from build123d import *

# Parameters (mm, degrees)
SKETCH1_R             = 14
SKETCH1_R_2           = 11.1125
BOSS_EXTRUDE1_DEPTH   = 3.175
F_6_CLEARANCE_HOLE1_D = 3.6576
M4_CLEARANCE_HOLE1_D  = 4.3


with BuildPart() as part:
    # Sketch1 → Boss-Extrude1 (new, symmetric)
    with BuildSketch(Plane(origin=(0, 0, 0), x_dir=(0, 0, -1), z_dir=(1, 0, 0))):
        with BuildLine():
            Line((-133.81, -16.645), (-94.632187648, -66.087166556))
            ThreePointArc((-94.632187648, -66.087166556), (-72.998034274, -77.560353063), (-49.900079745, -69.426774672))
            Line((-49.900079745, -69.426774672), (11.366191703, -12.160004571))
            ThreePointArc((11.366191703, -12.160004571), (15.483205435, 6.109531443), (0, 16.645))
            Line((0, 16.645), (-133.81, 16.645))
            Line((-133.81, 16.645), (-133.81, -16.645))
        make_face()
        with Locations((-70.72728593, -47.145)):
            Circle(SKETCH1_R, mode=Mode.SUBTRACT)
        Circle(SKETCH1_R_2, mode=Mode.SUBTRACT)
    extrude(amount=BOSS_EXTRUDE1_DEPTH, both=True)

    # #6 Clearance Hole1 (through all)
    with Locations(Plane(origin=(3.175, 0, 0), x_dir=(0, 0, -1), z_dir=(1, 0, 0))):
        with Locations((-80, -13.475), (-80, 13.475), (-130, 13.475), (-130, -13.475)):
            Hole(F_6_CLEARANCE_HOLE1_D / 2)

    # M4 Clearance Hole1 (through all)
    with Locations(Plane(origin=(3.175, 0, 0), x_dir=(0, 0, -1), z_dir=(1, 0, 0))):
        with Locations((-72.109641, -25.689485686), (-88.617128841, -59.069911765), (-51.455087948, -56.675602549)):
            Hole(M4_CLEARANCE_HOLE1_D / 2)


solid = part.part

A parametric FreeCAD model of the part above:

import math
import FreeCAD as App
import Part
import Sketcher
Q = App.Units.Quantity

doc = App.newDocument("Part")
params = doc.addObject("Spreadsheet::Sheet", "Params")
for row, (alias, value) in enumerate([
    ("sketch1_diameter", "28 mm"),
    ("sketch1_radius", "30.5 mm"),
    ("sketch1_width", "33.29 mm"),
    ("sketch1_height", "133.81 mm"),
    ("pad1_length", "6.35 mm"),
    ("hole_diameter", "3.6576 mm"),
    ("sketch3_diameter", "4.3 mm"),
    ("hole2_diameter", "4.3 mm"),
], start=1):
    params.set(f"A{row}", alias)
    params.set(f"B{row}", "=" + value)
    params.setAlias(f"B{row}", alias)

body = doc.addObject("PartDesign::Body", "Body")

# Sketch on YZ plane
sketch1 = body.newObject("Sketcher::SketchObject", "Sketch")
sketch1.AttachmentSupport = (doc.getObject("YZ_Plane"), [""])
sketch1.MapMode = "FlatFace"
sketch1.addGeometry([
    Part.LineSegment(App.Vector(-17, 134, 0), App.Vector(-66, 95, 0)),  # 0
    Part.ArcOfCircle(Part.Circle(App.Vector(-47, 71, 0), App.Vector(0, 0, 1), 30), math.radians(128), math.radians(223)),  # 1
    Part.LineSegment(App.Vector(-69, 50, 0), App.Vector(-12, -11, 0)),  # 2
    Part.ArcOfCircle(Part.Circle(App.Vector(0, 0, 0), App.Vector(0, 0, 1), 17), math.radians(-137), math.radians(0)),  # 3
    Part.LineSegment(App.Vector(17, 0, 0), App.Vector(17, 134, 0)),  # 4
    Part.LineSegment(App.Vector(17, 134, 0), App.Vector(-17, 134, 0)),  # 5
    Part.Circle(App.Vector(-47, 71, 0), App.Vector(0, 0, 1), 14),  # 6
    Part.Circle(App.Vector(0, 0, 0), App.Vector(0, 0, 1), 11),  # 7
], False)
sketch1.addConstraint([
    Sketcher.Constraint("Tangent", 0, 2, 1, 1),
    Sketcher.Constraint("Tangent", 1, 2, 2, 1),
    Sketcher.Constraint("Tangent", 2, 2, 3, 1),
    Sketcher.Constraint("Tangent", 3, 2, 4, 1),
    Sketcher.Constraint("Coincident", 4, 2, 5, 1),
    Sketcher.Constraint("Coincident", 5, 2, 0, 1),
    Sketcher.Constraint("Vertical", 4),
    Sketcher.Constraint("Horizontal", 5),
    Sketcher.Constraint("Coincident", 3, 3, -1, 1),
    Sketcher.Constraint("Coincident", 7, 3, -1, 1),
    Sketcher.Constraint("Coincident", 6, 3, 1, 3),
    Sketcher.Constraint("Diameter", 6, Q("28 mm")),
    Sketcher.Constraint("Radius", 1, Q("30.5 mm")),
    Sketcher.Constraint("Diameter", 7, Q("22.225 mm")),
    Sketcher.Constraint("Radius", 3, Q("16.645 mm")),
    Sketcher.Constraint("DistanceX", 5, 2, 5, 1, Q("33.29 mm")),
    Sketcher.Constraint("DistanceY", 4, 1, 4, 2, Q("133.81 mm")),
    Sketcher.Constraint("DistanceX", 1, 3, 5, 2, Q("30.5 mm")),
    Sketcher.Constraint("DistanceY", 1, 3, 0, 2, Q("23.904902 mm")),
])
sketch1.setExpression("Constraints[11]", "Params.sketch1_diameter")
sketch1.setExpression("Constraints[12]", "Params.sketch1_radius")
sketch1.setExpression("Constraints[15]", "Params.sketch1_width")
sketch1.setExpression("Constraints[16]", "Params.sketch1_height")
pad1 = body.newObject("PartDesign::Pad", "Pad")
pad1.Profile = sketch1
pad1.setExpression("Length", "Params.pad1_length")
pad1.Midplane = True

# Sketch on YZ plane
sketch2 = body.newObject("Sketcher::SketchObject", "Sketch001")
sketch2.AttachmentSupport = (doc.getObject("YZ_Plane"), [""])
sketch2.MapMode = "FlatFace"
sketch2.AttachmentOffset = App.Placement(App.Vector(0, 0, 3.175), App.Rotation())
sketch2.addGeometry([
    Part.Circle(App.Vector(-13.5, 80, 0), App.Vector(0, 0, 1), 1.8),
    Part.Circle(App.Vector(13.5, 80, 0), App.Vector(0, 0, 1), 1.8),
    Part.Circle(App.Vector(13.5, 130, 0), App.Vector(0, 0, 1), 1.8),
    Part.Circle(App.Vector(-13.5, 130, 0), App.Vector(0, 0, 1), 1.8),
], False)
sketch2.addConstraint([
    Sketcher.Constraint("Equal", 0, 1),
    Sketcher.Constraint("Equal", 1, 2),
    Sketcher.Constraint("Equal", 2, 3),
    Sketcher.Constraint("Symmetric", 0, 3, 1, 3, -2),
    Sketcher.Constraint("Symmetric", 2, 3, 3, 3, -2),
    Sketcher.Constraint("Vertical", 1, 3, 2, 3),
    Sketcher.Constraint("DistanceY", -1, 1, 0, 3, Q("80 mm")),
    Sketcher.Constraint("DistanceY", -1, 1, 2, 3, Q("130 mm")),
    Sketcher.Constraint("Diameter", 0, Q("3.6576 mm")),
    Sketcher.Constraint("DistanceX", 0, 3, 1, 3, Q("26.95 mm")),
])
doc.recompute()
hole = body.newObject("PartDesign::Hole", "Hole")
hole.Profile = sketch2
hole.ThreadType = "None"
hole.setExpression("Diameter", "Params.hole_diameter")
hole.DepthType = "ThroughAll"

# Sketch on YZ plane
sketch3 = body.newObject("Sketcher::SketchObject", "Sketch002")
sketch3.AttachmentSupport = (doc.getObject("YZ_Plane"), [""])
sketch3.MapMode = "FlatFace"
sketch3.AttachmentOffset = App.Placement(App.Vector(0, 0, 3.175), App.Rotation())
sketch3.addGeometry([
    Part.Circle(App.Vector(-25.7, 72.1, 0), App.Vector(0, 0, 1), 2.1),
    Part.Circle(App.Vector(-59.1, 88.6, 0), App.Vector(0, 0, 1), 2.1),
    Part.Circle(App.Vector(-56.7, 51.5, 0), App.Vector(0, 0, 1), 2.1),
], False)
sketch3.addConstraint([
    Sketcher.Constraint("Equal", 0, 1),
    Sketcher.Constraint("Equal", 1, 2),
    Sketcher.Constraint("Diameter", 0, Q("4.3 mm")),
    Sketcher.Constraint("DistanceY", -1, 1, 0, 3, Q("72.109641 mm")),
    Sketcher.Constraint("DistanceX", 1, 3, -1, 1, Q("59.069912 mm")),
    Sketcher.Constraint("DistanceY", -1, 1, 1, 3, Q("88.617129 mm")),
    Sketcher.Constraint("DistanceX", 1, 3, 2, 3, Q("2.394309 mm")),
    Sketcher.Constraint("DistanceY", 2, 3, 1, 3, Q("37.162041 mm")),
    Sketcher.Constraint("DistanceX", 0, 3, -1, 1, Q("25.689486 mm")),
])
sketch3.setExpression("Constraints[2]", "Params.sketch3_diameter")
doc.recompute()
hole2 = body.newObject("PartDesign::Hole", "Hole001")
hole2.Profile = sketch3
hole2.ThreadType = "None"
hole2.setExpression("Diameter", "Params.hole2_diameter")
hole2.DepthType = "ThroughAll"

doc.recompute()
